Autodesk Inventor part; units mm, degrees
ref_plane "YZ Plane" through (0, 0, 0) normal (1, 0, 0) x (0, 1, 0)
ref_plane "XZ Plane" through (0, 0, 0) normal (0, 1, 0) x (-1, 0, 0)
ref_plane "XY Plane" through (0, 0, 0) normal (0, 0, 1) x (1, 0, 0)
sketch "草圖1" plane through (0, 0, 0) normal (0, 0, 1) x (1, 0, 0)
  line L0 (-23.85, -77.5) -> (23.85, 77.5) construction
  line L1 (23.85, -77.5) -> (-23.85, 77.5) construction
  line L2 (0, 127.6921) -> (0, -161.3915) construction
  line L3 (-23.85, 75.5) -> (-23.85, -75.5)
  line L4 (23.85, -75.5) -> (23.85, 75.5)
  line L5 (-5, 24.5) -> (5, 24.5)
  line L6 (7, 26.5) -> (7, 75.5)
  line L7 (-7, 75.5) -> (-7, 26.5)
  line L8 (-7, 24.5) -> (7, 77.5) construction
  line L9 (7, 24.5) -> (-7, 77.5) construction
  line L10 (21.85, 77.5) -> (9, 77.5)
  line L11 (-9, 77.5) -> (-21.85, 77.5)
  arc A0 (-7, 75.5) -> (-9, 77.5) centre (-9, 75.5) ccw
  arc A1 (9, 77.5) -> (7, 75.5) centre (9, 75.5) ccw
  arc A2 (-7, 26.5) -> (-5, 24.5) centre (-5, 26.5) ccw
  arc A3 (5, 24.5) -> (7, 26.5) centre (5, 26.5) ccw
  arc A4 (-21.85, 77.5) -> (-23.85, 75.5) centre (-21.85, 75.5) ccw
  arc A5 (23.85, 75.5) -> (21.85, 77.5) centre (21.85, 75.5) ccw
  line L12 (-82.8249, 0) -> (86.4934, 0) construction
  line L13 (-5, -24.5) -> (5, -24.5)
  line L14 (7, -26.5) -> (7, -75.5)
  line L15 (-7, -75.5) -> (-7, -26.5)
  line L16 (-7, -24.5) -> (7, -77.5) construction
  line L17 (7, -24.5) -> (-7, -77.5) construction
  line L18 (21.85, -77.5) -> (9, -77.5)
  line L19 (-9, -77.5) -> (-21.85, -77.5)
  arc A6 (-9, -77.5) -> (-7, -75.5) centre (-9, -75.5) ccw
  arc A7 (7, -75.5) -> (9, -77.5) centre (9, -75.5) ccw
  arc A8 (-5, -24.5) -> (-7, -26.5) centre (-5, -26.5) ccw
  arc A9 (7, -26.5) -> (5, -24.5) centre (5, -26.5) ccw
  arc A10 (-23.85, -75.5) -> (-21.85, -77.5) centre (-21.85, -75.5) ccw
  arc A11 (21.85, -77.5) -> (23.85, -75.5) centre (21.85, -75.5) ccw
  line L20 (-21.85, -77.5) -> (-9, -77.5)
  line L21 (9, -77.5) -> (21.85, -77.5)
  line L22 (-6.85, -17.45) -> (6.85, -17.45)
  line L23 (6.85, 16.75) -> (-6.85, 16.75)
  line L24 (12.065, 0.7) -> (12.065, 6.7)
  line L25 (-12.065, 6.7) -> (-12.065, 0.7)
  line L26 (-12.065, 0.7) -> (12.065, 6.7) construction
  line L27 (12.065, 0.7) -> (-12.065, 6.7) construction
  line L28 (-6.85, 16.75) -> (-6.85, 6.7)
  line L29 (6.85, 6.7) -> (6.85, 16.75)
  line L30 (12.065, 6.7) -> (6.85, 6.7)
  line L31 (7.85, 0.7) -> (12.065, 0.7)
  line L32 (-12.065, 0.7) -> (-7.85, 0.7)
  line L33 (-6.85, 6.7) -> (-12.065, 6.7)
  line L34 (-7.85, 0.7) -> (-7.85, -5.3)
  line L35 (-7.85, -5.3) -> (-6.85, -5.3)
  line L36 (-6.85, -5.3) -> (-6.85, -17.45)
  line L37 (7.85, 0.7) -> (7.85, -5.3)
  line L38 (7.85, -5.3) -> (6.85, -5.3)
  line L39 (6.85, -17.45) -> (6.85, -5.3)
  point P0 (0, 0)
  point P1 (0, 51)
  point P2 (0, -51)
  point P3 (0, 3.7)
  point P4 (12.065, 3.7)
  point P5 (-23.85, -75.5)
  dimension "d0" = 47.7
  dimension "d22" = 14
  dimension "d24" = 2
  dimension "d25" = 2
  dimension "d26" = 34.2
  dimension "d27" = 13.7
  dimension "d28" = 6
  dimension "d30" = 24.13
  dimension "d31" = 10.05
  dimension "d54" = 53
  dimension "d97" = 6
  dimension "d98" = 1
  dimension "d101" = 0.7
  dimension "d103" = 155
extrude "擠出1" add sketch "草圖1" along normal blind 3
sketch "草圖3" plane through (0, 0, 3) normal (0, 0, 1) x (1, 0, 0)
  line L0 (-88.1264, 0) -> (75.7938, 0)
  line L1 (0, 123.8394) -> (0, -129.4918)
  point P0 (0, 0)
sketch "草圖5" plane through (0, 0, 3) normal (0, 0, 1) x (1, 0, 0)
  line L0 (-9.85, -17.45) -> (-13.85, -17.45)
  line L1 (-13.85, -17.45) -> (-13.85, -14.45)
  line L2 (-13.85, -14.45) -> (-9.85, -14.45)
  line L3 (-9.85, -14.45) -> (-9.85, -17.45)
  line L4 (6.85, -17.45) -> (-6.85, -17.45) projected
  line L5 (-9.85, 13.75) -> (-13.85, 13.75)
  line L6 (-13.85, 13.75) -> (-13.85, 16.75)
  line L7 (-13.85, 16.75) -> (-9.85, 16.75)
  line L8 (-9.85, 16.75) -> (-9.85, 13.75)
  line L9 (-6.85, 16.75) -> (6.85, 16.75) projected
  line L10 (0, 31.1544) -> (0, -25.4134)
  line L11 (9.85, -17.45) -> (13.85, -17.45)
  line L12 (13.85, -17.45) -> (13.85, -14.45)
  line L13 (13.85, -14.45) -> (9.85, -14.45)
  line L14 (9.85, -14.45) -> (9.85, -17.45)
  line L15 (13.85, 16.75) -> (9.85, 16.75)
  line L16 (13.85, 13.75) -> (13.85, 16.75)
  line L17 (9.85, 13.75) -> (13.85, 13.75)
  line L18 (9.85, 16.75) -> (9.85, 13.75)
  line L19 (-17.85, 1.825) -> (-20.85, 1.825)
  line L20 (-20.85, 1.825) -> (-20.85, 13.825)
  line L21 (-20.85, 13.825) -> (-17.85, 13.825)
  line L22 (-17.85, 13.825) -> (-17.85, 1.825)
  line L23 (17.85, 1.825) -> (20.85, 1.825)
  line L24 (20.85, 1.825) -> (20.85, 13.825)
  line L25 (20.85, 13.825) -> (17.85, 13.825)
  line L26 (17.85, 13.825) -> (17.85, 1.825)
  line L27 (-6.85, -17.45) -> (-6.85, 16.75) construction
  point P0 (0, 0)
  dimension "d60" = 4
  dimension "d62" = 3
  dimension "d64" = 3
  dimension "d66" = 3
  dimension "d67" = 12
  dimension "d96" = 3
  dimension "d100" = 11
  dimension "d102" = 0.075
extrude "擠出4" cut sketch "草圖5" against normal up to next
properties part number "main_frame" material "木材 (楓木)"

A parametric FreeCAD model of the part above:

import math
import FreeCAD as App
import Part
import Sketcher

doc = App.newDocument("Part")
body = doc.addObject("PartDesign::Body", "Body")

# Sketch on XY plane
sketch1 = body.newObject("Sketcher::SketchObject", "Sketch")
sketch1.AttachmentSupport = (doc.getObject("XY_Plane"), [""])
sketch1.MapMode = "FlatFace"
sketch1.addGeometry(Part.ArcOfCircle(Part.Circle(App.Vector(-21.9, 75.5, 0), App.Vector(0, 0, 1), 2), math.radians(90), math.radians(180)), False)
sketch1.addGeometry(Part.LineSegment(App.Vector(-23.9, 75.5, 0), App.Vector(-23.9, -75.5, 0)), False)
sketch1.addGeometry(Part.ArcOfCircle(Part.Circle(App.Vector(-21.9, -75.5, 0), App.Vector(0, 0, 1), 2), math.radians(180), math.radians(270)), False)
sketch1.addGeometry(Part.LineSegment(App.Vector(-21.9, -77.5, 0), App.Vector(-9, -77.5, 0)), False)
sketch1.addGeometry(Part.ArcOfCircle(Part.Circle(App.Vector(-9, -75.5, 0), App.Vector(0, 0, 1), 2), math.radians(-90), math.radians(0)), False)
sketch1.addGeometry(Part.LineSegment(App.Vector(-7, -75.5, 0), App.Vector(-7, -26.5, 0)), False)
sketch1.addGeometry(Part.ArcOfCircle(Part.Circle(App.Vector(-5, -26.5, 0), App.Vector(0, 0, 1), 2), math.radians(90), math.radians(180)), False)
sketch1.addGeometry(Part.LineSegment(App.Vector(-5, -24.5, 0), App.Vector(5, -24.5, 0)), False)
sketch1.addGeometry(Part.ArcOfCircle(Part.Circle(App.Vector(5, -26.5, 0), App.Vector(0, 0, 1), 2), math.radians(0), math.radians(90)), False)
sketch1.addGeometry(Part.LineSegment(App.Vector(7, -26.5, 0), App.Vector(7, -75.5, 0)), False)
sketch1.addGeometry(Part.ArcOfCircle(Part.Circle(App.Vector(9, -75.5, 0), App.Vector(0, 0, 1), 2), math.radians(180), math.radians(270)), False)
sketch1.addGeometry(Part.LineSegment(App.Vector(9, -77.5, 0), App.Vector(21.9, -77.5, 0)), False)
sketch1.addGeometry(Part.ArcOfCircle(Part.Circle(App.Vector(21.9, -75.5, 0), App.Vector(0, 0, 1), 2), math.radians(-90), math.radians(0)), False)
sketch1.addGeometry(Part.LineSegment(App.Vector(23.9, -75.5, 0), App.Vector(23.9, 75.5, 0)), False)
sketch1.addGeometry(Part.ArcOfCircle(Part.Circle(App.Vector(21.9, 75.5, 0), App.Vector(0, 0, 1), 2), math.radians(0), math.radians(90)), False)
sketch1.addGeometry(Part.LineSegment(App.Vector(21.9, 77.5, 0), App.Vector(9, 77.5, 0)), False)
sketch1.addGeometry(Part.ArcOfCircle(Part.Circle(App.Vector(9, 75.5, 0), App.Vector(0, 0, 1), 2), math.radians(90), math.radians(180)), False)
sketch1.addGeometry(Part.LineSegment(App.Vector(7, 75.5, 0), App.Vector(7, 26.5, 0)), False)
sketch1.addGeometry(Part.ArcOfCircle(Part.Circle(App.Vector(5, 26.5, 0), App.Vector(0, 0, 1), 2), math.radians(-90), math.radians(0)), False)
sketch1.addGeometry(Part.LineSegment(App.Vector(5, 24.5, 0), App.Vector(-5, 24.5, 0)), False)
sketch1.addGeometry(Part.ArcOfCircle(Part.Circle(App.Vector(-5, 26.5, 0), App.Vector(0, 0, 1), 2), math.radians(180), math.radians(270)), False)
sketch1.addGeometry(Part.LineSegment(App.Vector(-7, 26.5, 0), App.Vector(-7, 75.5, 0)), False)
sketch1.addGeometry(Part.ArcOfCircle(Part.Circle(App.Vector(-9, 75.5, 0), App.Vector(0, 0, 1), 2), math.radians(0), math.radians(90)), False)
sketch1.addGeometry(Part.LineSegment(App.Vector(-9, 77.5, 0), App.Vector(-21.9, 77.5, 0)), False)
sketch1.addGeometry(Part.LineSegment(App.Vector(6.8, -17.4, 0), App.Vector(-6.8, -17.4, 0)), False)
sketch1.addGeometry(Part.LineSegment(App.Vector(-6.8, -17.4, 0), App.Vector(-6.8, -5.3, 0)), False)
sketch1.addGeometry(Part.LineSegment(App.Vector(-6.8, -5.3, 0), App.Vector(-7.8, -5.3, 0)), False)
sketch1.addGeometry(Part.LineSegment(App.Vector(-7.8, -5.3, 0), App.Vector(-7.8, 0.7, 0)), False)
sketch1.addGeometry(Part.LineSegment(App.Vector(-7.8, 0.7, 0), App.Vector(-12.1, 0.7, 0)), False)
sketch1.addGeometry(Part.LineSegment(App.Vector(-12.1, 0.7, 0), App.Vector(-12.1, 6.7, 0)), False)
sketch1.addGeometry(Part.LineSegment(App.Vector(-12.1, 6.7, 0), App.Vector(-6.8, 6.7, 0)), False)
sketch1.addGeometry(Part.LineSegment(App.Vector(-6.8, 6.7, 0), App.Vector(-6.8, 16.8, 0)), False)
sketch1.addGeometry(Part.LineSegment(App.Vector(-6.8, 16.8, 0), App.Vector(6.8, 16.8, 0)), False)
sketch1.addGeometry(Part.LineSegment(App.Vector(6.8, 16.8, 0), App.Vector(6.8, 6.7, 0)), False)
sketch1.addGeometry(Part.LineSegment(App.Vector(6.8, 6.7, 0), App.Vector(12.1, 6.7, 0)), False)
sketch1.addGeometry(Part.LineSegment(App.Vector(12.1, 6.7, 0), App.Vector(12.1, 0.7, 0)), False)
sketch1.addGeometry(Part.LineSegment(App.Vector(12.1, 0.7, 0), App.Vector(7.8, 0.7, 0)), False)
sketch1.addGeometry(Part.LineSegment(App.Vector(7.8, 0.7, 0), App.Vector(7.8, -5.3, 0)), False)
sketch1.addGeometry(Part.LineSegment(App.Vector(7.8, -5.3, 0), App.Vector(6.8, -5.3, 0)), False)
sketch1.addGeometry(Part.LineSegment(App.Vector(6.8, -5.3, 0), App.Vector(6.8, -17.4, 0)), False)
sketch1.addConstraint(Sketcher.Constraint("Tangent", 0, 2, 1, 1))
sketch1.addConstraint(Sketcher.Constraint("Tangent", 1, 2, 2, 1))
sketch1.addConstraint(Sketcher.Constraint("Tangent", 2, 2, 3, 1))
sketch1.addConstraint(Sketcher.Constraint("Tangent", 3, 2, 4, 1))
sketch1.addConstraint(Sketcher.Constraint("Tangent", 4, 2, 5, 1))
sketch1.addConstraint(Sketcher.Constraint("Tangent", 5, 2, 6, 2))
sketch1.addConstraint(Sketcher.Constraint("Tangent", 6, 1, 7, 1))
sketch1.addConstraint(Sketcher.Constraint("Tangent", 7, 2, 8, 2))
sketch1.addConstraint(Sketcher.Constraint("Tangent", 8, 1, 9, 1))
sketch1.addConstraint(Sketcher.Constraint("Tangent", 9, 2, 10, 1))
sketch1.addConstraint(Sketcher.Constraint("Tangent", 10, 2, 11, 1))
sketch1.addConstraint(Sketcher.Constraint("Tangent", 11, 2, 12, 1))
sketch1.addConstraint(Sketcher.Constraint("Tangent", 12, 2, 13, 1))
sketch1.addConstraint(Sketcher.Constraint("Tangent", 13, 2, 14, 1))
sketch1.addConstraint(Sketcher.Constraint("Tangent", 14, 2, 15, 1))
sketch1.addConstraint(Sketcher.Constraint("Tangent", 15, 2, 16, 1))
sketch1.addConstraint(Sketcher.Constraint("Tangent", 16, 2, 17, 1))
sketch1.addConstraint(Sketcher.Constraint("Tangent", 17, 2, 18, 2))
sketch1.addConstraint(Sketcher.Constraint("Tangent", 18, 1, 19, 1))
sketch1.addConstraint(Sketcher.Constraint("Tangent", 19, 2, 20, 2))
sketch1.addConstraint(Sketcher.Constraint("Tangent", 20, 1, 21, 1))
sketch1.addConstraint(Sketcher.Constraint("Tangent", 21, 2, 22, 1))
sketch1.addConstraint(Sketcher.Constraint("Tangent", 22, 2, 23, 1))
sketch1.addConstraint(Sketcher.Constraint("Tangent", 23, 2, 0, 1))
sketch1.addConstraint(Sketcher.Constraint("Coincident", 24, 2, 25, 1))
sketch1.addConstraint(Sketcher.Constraint("Coincident", 25, 2, 26, 1))
sketch1.addConstraint(Sketcher.Constraint("Coincident", 26, 2, 27, 1))
sketch1.addConstraint(Sketcher.Constraint("Coincident", 27, 2, 28, 1))
sketch1.addConstraint(Sketcher.Constraint("Coincident", 28, 2, 29, 1))
sketch1.addConstraint(Sketcher.Constraint("Coincident", 29, 2, 30, 1))
sketch1.addConstraint(Sketcher.Constraint("Coincident", 30, 2, 31, 1))
sketch1.addConstraint(Sketcher.Constraint("Coincident", 31, 2, 32, 1))
sketch1.addConstraint(Sketcher.Constraint("Coincident", 32, 2, 33, 1))
sketch1.addConstraint(Sketcher.Constraint("Coincident", 33, 2, 34, 1))
sketch1.addConstraint(Sketcher.Constraint("Coincident", 34, 2, 35, 1))
sketch1.addConstraint(Sketcher.Constraint("Coincident", 35, 2, 36, 1))
sketch1.addConstraint(Sketcher.Constraint("Coincident", 36, 2, 37, 1))
sketch1.addConstraint(Sketcher.Constraint("Coincident", 37, 2, 38, 1))
sketch1.addConstraint(Sketcher.Constraint("Coincident", 38, 2, 39, 1))
sketch1.addConstraint(Sketcher.Constraint("Coincident", 39, 2, 24, 1))
sketch1.addConstraint(Sketcher.Constraint("Vertical", 1))
sketch1.addConstraint(Sketcher.Constraint("Horizontal", 3))
sketch1.addConstraint(Sketcher.Constraint("Vertical", 5))
sketch1.addConstraint(Sketcher.Constraint("Horizontal", 7))
sketch1.addConstraint(Sketcher.Constraint("Vertical", 9))
sketch1.addConstraint(Sketcher.Constraint("Horizontal", 11))
sketch1.addConstraint(Sketcher.Constraint("Vertical", 13))
sketch1.addConstraint(Sketcher.Constraint("Horizontal", 15))
sketch1.addConstraint(Sketcher.Constraint("Vertical", 17))
sketch1.addConstraint(Sketcher.Constraint("Horizontal", 19))
sketch1.addConstraint(Sketcher.Constraint("Vertical", 21))
sketch1.addConstraint(Sketcher.Constraint("Horizontal", 23))
sketch1.addConstraint(Sketcher.Constraint("Horizontal", 24))
sketch1.addConstraint(Sketcher.Constraint("Vertical", 25))
sketch1.addConstraint(Sketcher.Constraint("Horizontal", 26))
sketch1.addConstraint(Sketcher.Constraint("Vertical", 27))
sketch1.addConstraint(Sketcher.Constraint("Horizontal", 28))
sketch1.addConstraint(Sketcher.Constraint("Vertical", 29))
sketch1.addConstraint(Sketcher.Constraint("Horizontal", 30))
sketch1.addConstraint(Sketcher.Constraint("Vertical", 31))
sketch1.addConstraint(Sketcher.Constraint("Horizontal", 32))
sketch1.addConstraint(Sketcher.Constraint("Vertical", 33))
sketch1.addConstraint(Sketcher.Constraint("Horizontal", 34))
sketch1.addConstraint(Sketcher.Constraint("Vertical", 35))
sketch1.addConstraint(Sketcher.Constraint("Horizontal", 36))
sketch1.addConstraint(Sketcher.Constraint("Vertical", 37))
sketch1.addConstraint(Sketcher.Constraint("Horizontal", 38))
sketch1.addConstraint(Sketcher.Constraint("Vertical", 39))
sketch1.addConstraint(Sketcher.Constraint("Equal", 0, 2))
sketch1.addConstraint(Sketcher.Constraint("Equal", 2, 4))
sketch1.addConstraint(Sketcher.Constraint("Equal", 4, 6))
sketch1.addConstraint(Sketcher.Constraint("Equal", 6, 8))
sketch1.addConstraint(Sketcher.Constraint("Equal", 8, 10))
sketch1.addConstraint(Sketcher.Constraint("Equal", 10, 12))
sketch1.addConstraint(Sketcher.Constraint("Equal", 12, 14))
sketch1.addConstraint(Sketcher.Constraint("Equal", 14, 16))
sketch1.addConstraint(Sketcher.Constraint("Equal", 16, 18))
sketch1.addConstraint(Sketcher.Constraint("Equal", 18, 20))
sketch1.addConstraint(Sketcher.Constraint("Equal", 20, 22))
sketch1.addConstraint(Sketcher.Constraint("Symmetric", 0, 3, 12, 3, -1, 1))
sketch1.addConstraint(Sketcher.Constraint("Symmetric", 4, 3, 16, 3, -1, 1))
sketch1.addConstraint(Sketcher.Constraint("Symmetric", 8, 3, 20, 3, -1, 1))
sketch1.addConstraint(Sketcher.Constraint("Symmetric", 4, 3, 10, 3, -2))
sketch1.addConstraint(Sketcher.Constraint("Symmetric", 30, 2, 33, 2, -2))
sketch1.addConstraint(Sketcher.Constraint("Symmetric", 28, 2, 35, 2, -2))
sketch1.addConstraint(Sketcher.Constraint("Symmetric", 26, 2, 37, 2, -2))
sketch1.addConstraint(Sketcher.Constraint("Vertical", 25, 2, 30, 2))
sketch1.addConstraint(Sketcher.Constraint("Vertical", 33, 2, 38, 2))
sketch1.addConstraint(Sketcher.Constraint("Equal", 27, 29))
sketch1.addConstraint(Sketcher.Constraint("Radius", 0, 2.0))
sketch1.addConstraint(Sketcher.Constraint("DistanceX", 26, 2, 26, 1, 1.0))
sketch1.addConstraint(Sketcher.Constraint("DistanceY", 27, 1, 27, 2, 6.0))
sketch1.addConstraint(Sketcher.Constraint("DistanceX", 24, 2, 24, 1, 13.7))
sketch1.addConstraint(Sketcher.Constraint("DistanceX", 4, 3, 8, 3, 14.0))
sketch1.addConstraint(Sketcher.Constraint("DistanceY", 8, 3, 18, 3, 53.0))
sketch1.addConstraint(Sketcher.Constraint("DistanceY", 31, 1, 31, 2, 10.05))
sketch1.addConstraint(Sketcher.Constraint("DistanceY", -1, 1, 27, 2, 0.7))
sketch1.addConstraint(Sketcher.Constraint("DistanceX", 0, 2, 13, 2, 47.7))
sketch1.addConstraint(Sketcher.Constraint("DistanceY", 1, 2, 1, 1, 151.0))
sketch1.addConstraint(Sketcher.Constraint("DistanceY", 25, 1, 25, 2, 12.15))
sketch1.addConstraint(Sketcher.Constraint("DistanceX", 28, 2, 28, 1, 4.215))
pad1 = body.newObject("PartDesign::Pad", "Pad")
pad1.Profile = sketch1
pad1.Length = 3

# Sketch on XY plane
sketch2 = body.newObject("Sketcher::SketchObject", "Sketch001")
sketch2.AttachmentSupport = (doc.getObject("XY_Plane"), [""])
sketch2.MapMode = "FlatFace"
sketch2.AttachmentOffset = App.Placement(App.Vector(0, 0, 3), App.Rotation())
sketch2.addGeometry(Part.LineSegment(App.Vector(-13.8, -17.4, 0), App.Vector(-9.8, -17.4, 0)), False)
sketch2.addGeometry(Part.LineSegment(App.Vector(-9.8, -17.4, 0), App.Vector(-9.8, -14.4, 0)), False)
sketch2.addGeometry(Part.LineSegment(App.Vector(-9.8, -14.4, 0), App.Vector(-13.8, -14.4, 0)), False)
sketch2.addGeometry(Part.LineSegment(App.Vector(-13.8, -14.4, 0), App.Vector(-13.8, -17.4, 0)), False)
sketch2.addGeometry(Part.LineSegment(App.Vector(-13.8, 13.8, 0), App.Vector(-9.8, 13.8, 0)), False)
sketch2.addGeometry(Part.LineSegment(App.Vector(-9.8, 13.8, 0), App.Vector(-9.8, 16.8, 0)), False)
sketch2.addGeometry(Part.LineSegment(App.Vector(-9.8, 16.8, 0), App.Vector(-13.8, 16.8, 0)), False)
sketch2.addGeometry(Part.LineSegment(App.Vector(-13.8, 16.8, 0), App.Vector(-13.8, 13.8, 0)), False)
sketch2.addGeometry(Part.LineSegment(App.Vector(9.8, -14.4, 0), App.Vector(9.8, -17.4, 0)), False)
sketch2.addGeometry(Part.LineSegment(App.Vector(9.8, -17.4, 0), App.Vector(13.8, -17.4, 0)), False)
sketch2.addGeometry(Part.LineSegment(App.Vector(13.8, -17.4, 0), App.Vector(13.8, -14.4, 0)), False)
sketch2.addGeometry(Part.LineSegment(App.Vector(13.8, -14.4, 0), App.Vector(9.8, -14.4, 0)), False)
sketch2.addGeometry(Part.LineSegment(App.Vector(13.8, 13.8, 0), App.Vector(13.8, 16.8, 0)), False)
sketch2.addGeometry(Part.LineSegment(App.Vector(13.8, 16.8, 0), App.Vector(9.8, 16.8, 0)), False)
sketch2.addGeometry(Part.LineSegment(App.Vector(9.8, 16.8, 0), App.Vector(9.8, 13.8, 0)), False)
sketch2.addGeometry(Part.LineSegment(App.Vector(9.8, 13.8, 0), App.Vector(13.8, 13.8, 0)), False)
sketch2.addGeometry(Part.LineSegment(App.Vector(-20.9, 1.8, 0), App.Vector(-17.9, 1.8, 0)), False)
sketch2.addGeometry(Part.LineSegment(App.Vector(-17.9, 1.8, 0), App.Vector(-17.9, 13.8, 0)), False)
sketch2.addGeometry(Part.LineSegment(App.Vector(-17.9, 13.8, 0), App.Vector(-20.9, 13.8, 0)), False)
sketch2.addGeometry(Part.LineSegment(App.Vector(-20.9, 13.8, 0), App.Vector(-20.9, 1.8, 0)), False)
sketch2.addGeometry(Part.LineSegment(App.Vector(17.9, 13.8, 0), App.Vector(17.9, 1.8, 0)), False)
sketch2.addGeometry(Part.LineSegment(App.Vector(17.9, 1.8, 0), App.Vector(20.9, 1.8, 0)), False)
sketch2.addGeometry(Part.LineSegment(App.Vector(20.9, 1.8, 0), App.Vector(20.9, 13.8, 0)), False)
sketch2.addGeometry(Part.LineSegment(App.Vector(20.9, 13.8, 0), App.Vector(17.9, 13.8, 0)), False)
sketch2.addConstraint(Sketcher.Constraint("Coincident", 0, 2, 1, 1))
sketch2.addConstraint(Sketcher.Constraint("Coincident", 1, 2, 2, 1))
sketch2.addConstraint(Sketcher.Constraint("Coincident", 2, 2, 3, 1))
sketch2.addConstraint(Sketcher.Constraint("Coincident", 3, 2, 0, 1))
sketch2.addConstraint(Sketcher.Constraint("Coincident", 4, 2, 5, 1))
sketch2.addConstraint(Sketcher.Constraint("Coincident", 5, 2, 6, 1))
sketch2.addConstraint(Sketcher.Constraint("Coincident", 6, 2, 7, 1))
sketch2.addConstraint(Sketcher.Constraint("Coincident", 7, 2, 4, 1))
sketch2.addConstraint(Sketcher.Constraint("Coincident", 8, 2, 9, 1))
sketch2.addConstraint(Sketcher.Constraint("Coincident", 9, 2, 10, 1))
sketch2.addConstraint(Sketcher.Constraint("Coincident", 10, 2, 11, 1))
sketch2.addConstraint(Sketcher.Constraint("Coincident", 11, 2, 8, 1))
sketch2.addConstraint(Sketcher.Constraint("Coincident", 12, 2, 13, 1))
sketch2.addConstraint(Sketcher.Constraint("Coincident", 13, 2, 14, 1))
sketch2.addConstraint(Sketcher.Constraint("Coincident", 14, 2, 15, 1))
sketch2.addConstraint(Sketcher.Constraint("Coincident", 15, 2, 12, 1))
sketch2.addConstraint(Sketcher.Constraint("Coincident", 16, 2, 17, 1))
sketch2.addConstraint(Sketcher.Constraint("Coincident", 17, 2, 18, 1))
sketch2.addConstraint(Sketcher.Constraint("Coincident", 18, 2, 19, 1))
sketch2.addConstraint(Sketcher.Constraint("Coincident", 19, 2, 16, 1))
sketch2.addConstraint(Sketcher.Constraint("Coincident", 20, 2, 21, 1))
sketch2.addConstraint(Sketcher.Constraint("Coincident", 21, 2, 22, 1))
sketch2.addConstraint(Sketcher.Constraint("Coincident", 22, 2, 23, 1))
sketch2.addConstraint(Sketcher.Constraint("Coincident", 23, 2, 20, 1))
sketch2.addConstraint(Sketcher.Constraint("Horizontal", 0))
sketch2.addConstraint(Sketcher.Constraint("Vertical", 1))
sketch2.addConstraint(Sketcher.Constraint("Horizontal", 2))
sketch2.addConstraint(Sketcher.Constraint("Vertical", 3))
sketch2.addConstraint(Sketcher.Constraint("Horizontal", 4))
sketch2.addConstraint(Sketcher.Constraint("Vertical", 5))
sketch2.addConstraint(Sketcher.Constraint("Horizontal", 6))
sketch2.addConstraint(Sketcher.Constraint("Vertical", 7))
sketch2.addConstraint(Sketcher.Constraint("Vertical", 8))
sketch2.addConstraint(Sketcher.Constraint("Horizontal", 9))
sketch2.addConstraint(Sketcher.Constraint("Vertical", 10))
sketch2.addConstraint(Sketcher.Constraint("Horizontal", 11))
sketch2.addConstraint(Sketcher.Constraint("Vertical", 12))
sketch2.addConstraint(Sketcher.Constraint("Horizontal", 13))
sketch2.addConstraint(Sketcher.Constraint("Vertical", 14))
sketch2.addConstraint(Sketcher.Constraint("Horizontal", 15))
sketch2.addConstraint(Sketcher.Constraint("Horizontal", 16))
sketch2.addConstraint(Sketcher.Constraint("Vertical", 17))
sketch2.addConstraint(Sketcher.Constraint("Horizontal", 18))
sketch2.addConstraint(Sketcher.Constraint("Vertical", 19))
sketch2.addConstraint(Sketcher.Constraint("Vertical", 20))
sketch2.addConstraint(Sketcher.Constraint("Horizontal", 21))
sketch2.addConstraint(Sketcher.Constraint("Vertical", 22))
sketch2.addConstraint(Sketcher.Constraint("Horizontal", 23))
sketch2.addConstraint(Sketcher.Constraint("Symmetric", 0, 2, 8, 2, -2))
sketch2.addConstraint(Sketcher.Constraint("Symmetric", 2, 2, 10, 2, -2))
sketch2.addConstraint(Sketcher.Constraint("Symmetric", 6, 2, 12, 2, -2))
sketch2.addConstraint(Sketcher.Constraint("Symmetric", 4, 2, 14, 2, -2))
sketch2.addConstraint(Sketcher.Constraint("Symmetric", 16, 2, 20, 2, -2))
sketch2.addConstraint(Sketcher.Constraint("Symmetric", 18, 2, 22, 2, -2))
sketch2.addConstraint(Sketcher.Constraint("Vertical", 1, 2, 4, 2))
sketch2.addConstraint(Sketcher.Constraint("Vertical", 3, 2, 6, 2))
sketch2.addConstraint(Sketcher.Constraint("Equal", 23, 1))
sketch2.addConstraint(Sketcher.Constraint("Equal", 3, 5))
sketch2.addConstraint(Sketcher.Constraint("DistanceX", 0, 1, 0, 2, 4.0))
sketch2.addConstraint(Sketcher.Constraint("DistanceX", 16, 1, 16, 2, 3.0))
sketch2.addConstraint(Sketcher.Constraint("DistanceY", 17, 1, 17, 2, 12.0))
sketch2.addConstraint(Sketcher.Constraint("DistanceX", 16, 2, 7, 2, 4.0))
sketch2.addConstraint(Sketcher.Constraint("DistanceY", 7, 2, 17, 2, 0.075))
sketch2.addConstraint(Sketcher.Constraint("DistanceY", 1, 2, 4, 2, 28.2))
sketch2.addConstraint(Sketcher.Constraint("DistanceX", 0, 2, 8, 2, 19.7))
sketch2.addConstraint(Sketcher.Constraint("DistanceY", 0, 2, -1, 1, 17.45))
pocket1 = body.newObject("PartDesign::Pocket", "Pocket")
pocket1.Profile = sketch2
pocket1.Length = 3

doc.recompute()
